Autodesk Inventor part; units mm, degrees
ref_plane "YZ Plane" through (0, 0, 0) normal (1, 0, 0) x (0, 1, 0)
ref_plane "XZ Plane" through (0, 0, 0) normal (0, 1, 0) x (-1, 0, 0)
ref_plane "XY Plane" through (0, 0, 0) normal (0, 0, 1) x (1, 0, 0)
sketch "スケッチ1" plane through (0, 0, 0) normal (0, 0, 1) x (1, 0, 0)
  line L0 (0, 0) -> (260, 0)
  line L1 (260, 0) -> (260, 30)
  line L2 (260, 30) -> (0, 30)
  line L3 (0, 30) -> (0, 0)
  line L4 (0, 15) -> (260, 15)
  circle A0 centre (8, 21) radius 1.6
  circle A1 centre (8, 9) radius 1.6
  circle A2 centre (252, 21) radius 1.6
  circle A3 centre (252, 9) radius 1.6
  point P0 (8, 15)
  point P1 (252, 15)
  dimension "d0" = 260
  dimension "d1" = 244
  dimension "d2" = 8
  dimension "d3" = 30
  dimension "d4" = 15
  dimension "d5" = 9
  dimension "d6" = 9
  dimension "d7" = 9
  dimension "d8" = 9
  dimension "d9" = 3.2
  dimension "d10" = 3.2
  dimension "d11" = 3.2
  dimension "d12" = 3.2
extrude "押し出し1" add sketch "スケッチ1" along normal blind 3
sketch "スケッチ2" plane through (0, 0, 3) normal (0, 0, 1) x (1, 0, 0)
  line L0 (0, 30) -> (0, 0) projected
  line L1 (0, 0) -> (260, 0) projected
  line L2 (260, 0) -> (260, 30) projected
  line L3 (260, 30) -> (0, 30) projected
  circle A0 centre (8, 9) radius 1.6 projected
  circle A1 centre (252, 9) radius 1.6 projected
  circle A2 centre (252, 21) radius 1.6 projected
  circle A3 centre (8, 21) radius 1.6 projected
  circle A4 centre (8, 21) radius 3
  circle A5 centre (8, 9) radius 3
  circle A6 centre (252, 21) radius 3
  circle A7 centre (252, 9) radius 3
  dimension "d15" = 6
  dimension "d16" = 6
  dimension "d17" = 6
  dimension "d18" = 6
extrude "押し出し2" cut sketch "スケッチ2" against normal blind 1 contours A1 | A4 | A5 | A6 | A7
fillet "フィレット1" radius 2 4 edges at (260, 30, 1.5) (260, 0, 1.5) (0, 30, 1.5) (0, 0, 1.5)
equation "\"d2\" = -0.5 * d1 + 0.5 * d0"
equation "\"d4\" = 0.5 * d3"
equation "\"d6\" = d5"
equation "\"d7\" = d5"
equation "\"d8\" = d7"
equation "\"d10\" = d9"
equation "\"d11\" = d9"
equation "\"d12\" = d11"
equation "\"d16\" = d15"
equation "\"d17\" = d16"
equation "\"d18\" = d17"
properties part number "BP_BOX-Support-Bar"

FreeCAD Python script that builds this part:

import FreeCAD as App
import Part
import Sketcher

V = App.Vector


def edges_at(feature, points):
    """Names of the edges that pass closest to the given points."""
    edges = feature.Shape.Edges
    near = lambda p: min(range(len(edges)), key=lambda i: edges[i].distToShape(Part.Vertex(*p))[0])
    return sorted({f"Edge{near(p) + 1}" for p in points})


def add_polygon(sketch, points):
    """Adds a closed chain of lines whose ends are joined by coincident constraints."""
    first, n = sketch.GeometryCount, len(points)
    for a, b in zip(points, points[1:] + points[:1]):
        sketch.addGeometry(Part.LineSegment(App.Vector(*a, 0), App.Vector(*b, 0)), False)
    for i in range(n):
        sketch.addConstraint(Sketcher.Constraint("Coincident", first + i, 2, first + (i + 1) % n, 1))

doc = App.newDocument("Part")
body = doc.addObject("PartDesign::Body", "Body")

sketch1 = body.newObject("Sketcher::SketchObject", "Sketch")
sketch1.AttachmentSupport = (doc.getObject("XY_Plane"), [""])
sketch1.MapMode = "FlatFace"
add_polygon(sketch1, [(0, 0), (260, 0), (260, 30), (0, 30)])
sketch1.addGeometry(Part.Circle(V(8, 9, 0), V(0, 0, 1), 1.6), False)
sketch1.addGeometry(Part.Circle(V(252, 9, 0), V(0, 0, 1), 1.6), False)
sketch1.addGeometry(Part.Circle(V(252, 21, 0), V(0, 0, 1), 1.6), False)
sketch1.addGeometry(Part.Circle(V(8, 21, 0), V(0, 0, 1), 1.6), False)
sketch1.addConstraint(Sketcher.Constraint("Horizontal", 0))
sketch1.addConstraint(Sketcher.Constraint("Vertical", 1))
sketch1.addConstraint(Sketcher.Constraint("Horizontal", 2))
sketch1.addConstraint(Sketcher.Constraint("Vertical", 3))
sketch1.addConstraint(Sketcher.Constraint("Coincident", 3, 2, -1, 1))
sketch1.addConstraint(Sketcher.Constraint("Equal", 4, 5))
sketch1.addConstraint(Sketcher.Constraint("Equal", 5, 6))
sketch1.addConstraint(Sketcher.Constraint("Equal", 6, 7))
sketch1.addConstraint(Sketcher.Constraint("Horizontal", 4, 3, 5, 3))
sketch1.addConstraint(Sketcher.Constraint("Horizontal", 6, 3, 7, 3))
sketch1.addConstraint(Sketcher.Constraint("Vertical", 5, 3, 6, 3))
sketch1.addConstraint(Sketcher.Constraint("Vertical", 4, 3, 7, 3))
sketch1.addConstraint(Sketcher.Constraint("Diameter", 4, 3.2))
sketch1.addConstraint(Sketcher.Constraint("DistanceX", 0, 1, 0, 2, 260.0))
sketch1.addConstraint(Sketcher.Constraint("DistanceY", 1, 1, 1, 2, 30.0))
sketch1.addConstraint(Sketcher.Constraint("DistanceX", -1, 1, 4, 3, 8.0))
sketch1.addConstraint(Sketcher.Constraint("DistanceY", -1, 1, 4, 3, 9.0))
sketch1.addConstraint(Sketcher.Constraint("DistanceX", 4, 3, 5, 3, 244.0))
sketch1.addConstraint(Sketcher.Constraint("DistanceY", 6, 3, 1, 2, 9.0))
pad1 = body.newObject("PartDesign::Pad", "Pad")
pad1.Profile = sketch1
pad1.Length = 3

sketch2 = body.newObject("Sketcher::SketchObject", "Sketch001")
sketch2.AttachmentSupport = (doc.getObject("XY_Plane"), [""])
sketch2.MapMode = "FlatFace"
sketch2.AttachmentOffset = App.Placement(V(0, 0, 3), App.Rotation())
sketch2.addGeometry(Part.Circle(V(252, 9, 0), V(0, 0, 1), 3), False)
sketch2.addGeometry(Part.Circle(V(8, 21, 0), V(0, 0, 1), 3), False)
sketch2.addGeometry(Part.Circle(V(8, 21, 0), V(0, 0, 1), 1.6), False)
sketch2.addGeometry(Part.Circle(V(8, 9, 0), V(0, 0, 1), 3), False)
sketch2.addGeometry(Part.Circle(V(8, 9, 0), V(0, 0, 1), 1.6), False)
sketch2.addGeometry(Part.Circle(V(252, 21, 0), V(0, 0, 1), 3), False)
sketch2.addGeometry(Part.Circle(V(252, 21, 0), V(0, 0, 1), 1.6), False)
sketch2.addConstraint(Sketcher.Constraint("Coincident", 2, 3, 1, 3))
sketch2.addConstraint(Sketcher.Constraint("Coincident", 4, 3, 3, 3))
sketch2.addConstraint(Sketcher.Constraint("Coincident", 6, 3, 5, 3))
sketch2.addConstraint(Sketcher.Constraint("Equal", 0, 1))
sketch2.addConstraint(Sketcher.Constraint("Equal", 1, 3))
sketch2.addConstraint(Sketcher.Constraint("Equal", 2, 4))
sketch2.addConstraint(Sketcher.Constraint("Equal", 3, 5))
sketch2.addConstraint(Sketcher.Constraint("Equal", 4, 6))
sketch2.addConstraint(Sketcher.Constraint("Horizontal", 0, 3, 3, 3))
sketch2.addConstraint(Sketcher.Constraint("Horizontal", 2, 3, 5, 3))
sketch2.addConstraint(Sketcher.Constraint("Vertical", 2, 3, 3, 3))
sketch2.addConstraint(Sketcher.Constraint("Vertical", 0, 3, 5, 3))
sketch2.addConstraint(Sketcher.Constraint("Diameter", 0, 6.0))
sketch2.addConstraint(Sketcher.Constraint("Diameter", 2, 3.2))
sketch2.addConstraint(Sketcher.Constraint("DistanceX", -1, 1, 0, 3, 252.0))
sketch2.addConstraint(Sketcher.Constraint("DistanceY", -1, 1, 0, 3, 9.0))
sketch2.addConstraint(Sketcher.Constraint("DistanceX", -1, 1, 1, 3, 8.0))
sketch2.addConstraint(Sketcher.Constraint("DistanceY", -1, 1, 1, 3, 21.0))
pocket1 = body.newObject("PartDesign::Pocket", "Pocket")
pocket1.Profile = sketch2
pocket1.Length = 1
doc.recompute()

fillet = body.newObject("PartDesign::Fillet", "Fillet")
fillet.Base = (pocket1, edges_at(pocket1, [
    (260, 30, 1.5),
    (260, 0, 1.5),
    (0, 30, 1.5),
    (0, 0, 1.5),
]))
fillet.Radius = 2

doc.recompute()
